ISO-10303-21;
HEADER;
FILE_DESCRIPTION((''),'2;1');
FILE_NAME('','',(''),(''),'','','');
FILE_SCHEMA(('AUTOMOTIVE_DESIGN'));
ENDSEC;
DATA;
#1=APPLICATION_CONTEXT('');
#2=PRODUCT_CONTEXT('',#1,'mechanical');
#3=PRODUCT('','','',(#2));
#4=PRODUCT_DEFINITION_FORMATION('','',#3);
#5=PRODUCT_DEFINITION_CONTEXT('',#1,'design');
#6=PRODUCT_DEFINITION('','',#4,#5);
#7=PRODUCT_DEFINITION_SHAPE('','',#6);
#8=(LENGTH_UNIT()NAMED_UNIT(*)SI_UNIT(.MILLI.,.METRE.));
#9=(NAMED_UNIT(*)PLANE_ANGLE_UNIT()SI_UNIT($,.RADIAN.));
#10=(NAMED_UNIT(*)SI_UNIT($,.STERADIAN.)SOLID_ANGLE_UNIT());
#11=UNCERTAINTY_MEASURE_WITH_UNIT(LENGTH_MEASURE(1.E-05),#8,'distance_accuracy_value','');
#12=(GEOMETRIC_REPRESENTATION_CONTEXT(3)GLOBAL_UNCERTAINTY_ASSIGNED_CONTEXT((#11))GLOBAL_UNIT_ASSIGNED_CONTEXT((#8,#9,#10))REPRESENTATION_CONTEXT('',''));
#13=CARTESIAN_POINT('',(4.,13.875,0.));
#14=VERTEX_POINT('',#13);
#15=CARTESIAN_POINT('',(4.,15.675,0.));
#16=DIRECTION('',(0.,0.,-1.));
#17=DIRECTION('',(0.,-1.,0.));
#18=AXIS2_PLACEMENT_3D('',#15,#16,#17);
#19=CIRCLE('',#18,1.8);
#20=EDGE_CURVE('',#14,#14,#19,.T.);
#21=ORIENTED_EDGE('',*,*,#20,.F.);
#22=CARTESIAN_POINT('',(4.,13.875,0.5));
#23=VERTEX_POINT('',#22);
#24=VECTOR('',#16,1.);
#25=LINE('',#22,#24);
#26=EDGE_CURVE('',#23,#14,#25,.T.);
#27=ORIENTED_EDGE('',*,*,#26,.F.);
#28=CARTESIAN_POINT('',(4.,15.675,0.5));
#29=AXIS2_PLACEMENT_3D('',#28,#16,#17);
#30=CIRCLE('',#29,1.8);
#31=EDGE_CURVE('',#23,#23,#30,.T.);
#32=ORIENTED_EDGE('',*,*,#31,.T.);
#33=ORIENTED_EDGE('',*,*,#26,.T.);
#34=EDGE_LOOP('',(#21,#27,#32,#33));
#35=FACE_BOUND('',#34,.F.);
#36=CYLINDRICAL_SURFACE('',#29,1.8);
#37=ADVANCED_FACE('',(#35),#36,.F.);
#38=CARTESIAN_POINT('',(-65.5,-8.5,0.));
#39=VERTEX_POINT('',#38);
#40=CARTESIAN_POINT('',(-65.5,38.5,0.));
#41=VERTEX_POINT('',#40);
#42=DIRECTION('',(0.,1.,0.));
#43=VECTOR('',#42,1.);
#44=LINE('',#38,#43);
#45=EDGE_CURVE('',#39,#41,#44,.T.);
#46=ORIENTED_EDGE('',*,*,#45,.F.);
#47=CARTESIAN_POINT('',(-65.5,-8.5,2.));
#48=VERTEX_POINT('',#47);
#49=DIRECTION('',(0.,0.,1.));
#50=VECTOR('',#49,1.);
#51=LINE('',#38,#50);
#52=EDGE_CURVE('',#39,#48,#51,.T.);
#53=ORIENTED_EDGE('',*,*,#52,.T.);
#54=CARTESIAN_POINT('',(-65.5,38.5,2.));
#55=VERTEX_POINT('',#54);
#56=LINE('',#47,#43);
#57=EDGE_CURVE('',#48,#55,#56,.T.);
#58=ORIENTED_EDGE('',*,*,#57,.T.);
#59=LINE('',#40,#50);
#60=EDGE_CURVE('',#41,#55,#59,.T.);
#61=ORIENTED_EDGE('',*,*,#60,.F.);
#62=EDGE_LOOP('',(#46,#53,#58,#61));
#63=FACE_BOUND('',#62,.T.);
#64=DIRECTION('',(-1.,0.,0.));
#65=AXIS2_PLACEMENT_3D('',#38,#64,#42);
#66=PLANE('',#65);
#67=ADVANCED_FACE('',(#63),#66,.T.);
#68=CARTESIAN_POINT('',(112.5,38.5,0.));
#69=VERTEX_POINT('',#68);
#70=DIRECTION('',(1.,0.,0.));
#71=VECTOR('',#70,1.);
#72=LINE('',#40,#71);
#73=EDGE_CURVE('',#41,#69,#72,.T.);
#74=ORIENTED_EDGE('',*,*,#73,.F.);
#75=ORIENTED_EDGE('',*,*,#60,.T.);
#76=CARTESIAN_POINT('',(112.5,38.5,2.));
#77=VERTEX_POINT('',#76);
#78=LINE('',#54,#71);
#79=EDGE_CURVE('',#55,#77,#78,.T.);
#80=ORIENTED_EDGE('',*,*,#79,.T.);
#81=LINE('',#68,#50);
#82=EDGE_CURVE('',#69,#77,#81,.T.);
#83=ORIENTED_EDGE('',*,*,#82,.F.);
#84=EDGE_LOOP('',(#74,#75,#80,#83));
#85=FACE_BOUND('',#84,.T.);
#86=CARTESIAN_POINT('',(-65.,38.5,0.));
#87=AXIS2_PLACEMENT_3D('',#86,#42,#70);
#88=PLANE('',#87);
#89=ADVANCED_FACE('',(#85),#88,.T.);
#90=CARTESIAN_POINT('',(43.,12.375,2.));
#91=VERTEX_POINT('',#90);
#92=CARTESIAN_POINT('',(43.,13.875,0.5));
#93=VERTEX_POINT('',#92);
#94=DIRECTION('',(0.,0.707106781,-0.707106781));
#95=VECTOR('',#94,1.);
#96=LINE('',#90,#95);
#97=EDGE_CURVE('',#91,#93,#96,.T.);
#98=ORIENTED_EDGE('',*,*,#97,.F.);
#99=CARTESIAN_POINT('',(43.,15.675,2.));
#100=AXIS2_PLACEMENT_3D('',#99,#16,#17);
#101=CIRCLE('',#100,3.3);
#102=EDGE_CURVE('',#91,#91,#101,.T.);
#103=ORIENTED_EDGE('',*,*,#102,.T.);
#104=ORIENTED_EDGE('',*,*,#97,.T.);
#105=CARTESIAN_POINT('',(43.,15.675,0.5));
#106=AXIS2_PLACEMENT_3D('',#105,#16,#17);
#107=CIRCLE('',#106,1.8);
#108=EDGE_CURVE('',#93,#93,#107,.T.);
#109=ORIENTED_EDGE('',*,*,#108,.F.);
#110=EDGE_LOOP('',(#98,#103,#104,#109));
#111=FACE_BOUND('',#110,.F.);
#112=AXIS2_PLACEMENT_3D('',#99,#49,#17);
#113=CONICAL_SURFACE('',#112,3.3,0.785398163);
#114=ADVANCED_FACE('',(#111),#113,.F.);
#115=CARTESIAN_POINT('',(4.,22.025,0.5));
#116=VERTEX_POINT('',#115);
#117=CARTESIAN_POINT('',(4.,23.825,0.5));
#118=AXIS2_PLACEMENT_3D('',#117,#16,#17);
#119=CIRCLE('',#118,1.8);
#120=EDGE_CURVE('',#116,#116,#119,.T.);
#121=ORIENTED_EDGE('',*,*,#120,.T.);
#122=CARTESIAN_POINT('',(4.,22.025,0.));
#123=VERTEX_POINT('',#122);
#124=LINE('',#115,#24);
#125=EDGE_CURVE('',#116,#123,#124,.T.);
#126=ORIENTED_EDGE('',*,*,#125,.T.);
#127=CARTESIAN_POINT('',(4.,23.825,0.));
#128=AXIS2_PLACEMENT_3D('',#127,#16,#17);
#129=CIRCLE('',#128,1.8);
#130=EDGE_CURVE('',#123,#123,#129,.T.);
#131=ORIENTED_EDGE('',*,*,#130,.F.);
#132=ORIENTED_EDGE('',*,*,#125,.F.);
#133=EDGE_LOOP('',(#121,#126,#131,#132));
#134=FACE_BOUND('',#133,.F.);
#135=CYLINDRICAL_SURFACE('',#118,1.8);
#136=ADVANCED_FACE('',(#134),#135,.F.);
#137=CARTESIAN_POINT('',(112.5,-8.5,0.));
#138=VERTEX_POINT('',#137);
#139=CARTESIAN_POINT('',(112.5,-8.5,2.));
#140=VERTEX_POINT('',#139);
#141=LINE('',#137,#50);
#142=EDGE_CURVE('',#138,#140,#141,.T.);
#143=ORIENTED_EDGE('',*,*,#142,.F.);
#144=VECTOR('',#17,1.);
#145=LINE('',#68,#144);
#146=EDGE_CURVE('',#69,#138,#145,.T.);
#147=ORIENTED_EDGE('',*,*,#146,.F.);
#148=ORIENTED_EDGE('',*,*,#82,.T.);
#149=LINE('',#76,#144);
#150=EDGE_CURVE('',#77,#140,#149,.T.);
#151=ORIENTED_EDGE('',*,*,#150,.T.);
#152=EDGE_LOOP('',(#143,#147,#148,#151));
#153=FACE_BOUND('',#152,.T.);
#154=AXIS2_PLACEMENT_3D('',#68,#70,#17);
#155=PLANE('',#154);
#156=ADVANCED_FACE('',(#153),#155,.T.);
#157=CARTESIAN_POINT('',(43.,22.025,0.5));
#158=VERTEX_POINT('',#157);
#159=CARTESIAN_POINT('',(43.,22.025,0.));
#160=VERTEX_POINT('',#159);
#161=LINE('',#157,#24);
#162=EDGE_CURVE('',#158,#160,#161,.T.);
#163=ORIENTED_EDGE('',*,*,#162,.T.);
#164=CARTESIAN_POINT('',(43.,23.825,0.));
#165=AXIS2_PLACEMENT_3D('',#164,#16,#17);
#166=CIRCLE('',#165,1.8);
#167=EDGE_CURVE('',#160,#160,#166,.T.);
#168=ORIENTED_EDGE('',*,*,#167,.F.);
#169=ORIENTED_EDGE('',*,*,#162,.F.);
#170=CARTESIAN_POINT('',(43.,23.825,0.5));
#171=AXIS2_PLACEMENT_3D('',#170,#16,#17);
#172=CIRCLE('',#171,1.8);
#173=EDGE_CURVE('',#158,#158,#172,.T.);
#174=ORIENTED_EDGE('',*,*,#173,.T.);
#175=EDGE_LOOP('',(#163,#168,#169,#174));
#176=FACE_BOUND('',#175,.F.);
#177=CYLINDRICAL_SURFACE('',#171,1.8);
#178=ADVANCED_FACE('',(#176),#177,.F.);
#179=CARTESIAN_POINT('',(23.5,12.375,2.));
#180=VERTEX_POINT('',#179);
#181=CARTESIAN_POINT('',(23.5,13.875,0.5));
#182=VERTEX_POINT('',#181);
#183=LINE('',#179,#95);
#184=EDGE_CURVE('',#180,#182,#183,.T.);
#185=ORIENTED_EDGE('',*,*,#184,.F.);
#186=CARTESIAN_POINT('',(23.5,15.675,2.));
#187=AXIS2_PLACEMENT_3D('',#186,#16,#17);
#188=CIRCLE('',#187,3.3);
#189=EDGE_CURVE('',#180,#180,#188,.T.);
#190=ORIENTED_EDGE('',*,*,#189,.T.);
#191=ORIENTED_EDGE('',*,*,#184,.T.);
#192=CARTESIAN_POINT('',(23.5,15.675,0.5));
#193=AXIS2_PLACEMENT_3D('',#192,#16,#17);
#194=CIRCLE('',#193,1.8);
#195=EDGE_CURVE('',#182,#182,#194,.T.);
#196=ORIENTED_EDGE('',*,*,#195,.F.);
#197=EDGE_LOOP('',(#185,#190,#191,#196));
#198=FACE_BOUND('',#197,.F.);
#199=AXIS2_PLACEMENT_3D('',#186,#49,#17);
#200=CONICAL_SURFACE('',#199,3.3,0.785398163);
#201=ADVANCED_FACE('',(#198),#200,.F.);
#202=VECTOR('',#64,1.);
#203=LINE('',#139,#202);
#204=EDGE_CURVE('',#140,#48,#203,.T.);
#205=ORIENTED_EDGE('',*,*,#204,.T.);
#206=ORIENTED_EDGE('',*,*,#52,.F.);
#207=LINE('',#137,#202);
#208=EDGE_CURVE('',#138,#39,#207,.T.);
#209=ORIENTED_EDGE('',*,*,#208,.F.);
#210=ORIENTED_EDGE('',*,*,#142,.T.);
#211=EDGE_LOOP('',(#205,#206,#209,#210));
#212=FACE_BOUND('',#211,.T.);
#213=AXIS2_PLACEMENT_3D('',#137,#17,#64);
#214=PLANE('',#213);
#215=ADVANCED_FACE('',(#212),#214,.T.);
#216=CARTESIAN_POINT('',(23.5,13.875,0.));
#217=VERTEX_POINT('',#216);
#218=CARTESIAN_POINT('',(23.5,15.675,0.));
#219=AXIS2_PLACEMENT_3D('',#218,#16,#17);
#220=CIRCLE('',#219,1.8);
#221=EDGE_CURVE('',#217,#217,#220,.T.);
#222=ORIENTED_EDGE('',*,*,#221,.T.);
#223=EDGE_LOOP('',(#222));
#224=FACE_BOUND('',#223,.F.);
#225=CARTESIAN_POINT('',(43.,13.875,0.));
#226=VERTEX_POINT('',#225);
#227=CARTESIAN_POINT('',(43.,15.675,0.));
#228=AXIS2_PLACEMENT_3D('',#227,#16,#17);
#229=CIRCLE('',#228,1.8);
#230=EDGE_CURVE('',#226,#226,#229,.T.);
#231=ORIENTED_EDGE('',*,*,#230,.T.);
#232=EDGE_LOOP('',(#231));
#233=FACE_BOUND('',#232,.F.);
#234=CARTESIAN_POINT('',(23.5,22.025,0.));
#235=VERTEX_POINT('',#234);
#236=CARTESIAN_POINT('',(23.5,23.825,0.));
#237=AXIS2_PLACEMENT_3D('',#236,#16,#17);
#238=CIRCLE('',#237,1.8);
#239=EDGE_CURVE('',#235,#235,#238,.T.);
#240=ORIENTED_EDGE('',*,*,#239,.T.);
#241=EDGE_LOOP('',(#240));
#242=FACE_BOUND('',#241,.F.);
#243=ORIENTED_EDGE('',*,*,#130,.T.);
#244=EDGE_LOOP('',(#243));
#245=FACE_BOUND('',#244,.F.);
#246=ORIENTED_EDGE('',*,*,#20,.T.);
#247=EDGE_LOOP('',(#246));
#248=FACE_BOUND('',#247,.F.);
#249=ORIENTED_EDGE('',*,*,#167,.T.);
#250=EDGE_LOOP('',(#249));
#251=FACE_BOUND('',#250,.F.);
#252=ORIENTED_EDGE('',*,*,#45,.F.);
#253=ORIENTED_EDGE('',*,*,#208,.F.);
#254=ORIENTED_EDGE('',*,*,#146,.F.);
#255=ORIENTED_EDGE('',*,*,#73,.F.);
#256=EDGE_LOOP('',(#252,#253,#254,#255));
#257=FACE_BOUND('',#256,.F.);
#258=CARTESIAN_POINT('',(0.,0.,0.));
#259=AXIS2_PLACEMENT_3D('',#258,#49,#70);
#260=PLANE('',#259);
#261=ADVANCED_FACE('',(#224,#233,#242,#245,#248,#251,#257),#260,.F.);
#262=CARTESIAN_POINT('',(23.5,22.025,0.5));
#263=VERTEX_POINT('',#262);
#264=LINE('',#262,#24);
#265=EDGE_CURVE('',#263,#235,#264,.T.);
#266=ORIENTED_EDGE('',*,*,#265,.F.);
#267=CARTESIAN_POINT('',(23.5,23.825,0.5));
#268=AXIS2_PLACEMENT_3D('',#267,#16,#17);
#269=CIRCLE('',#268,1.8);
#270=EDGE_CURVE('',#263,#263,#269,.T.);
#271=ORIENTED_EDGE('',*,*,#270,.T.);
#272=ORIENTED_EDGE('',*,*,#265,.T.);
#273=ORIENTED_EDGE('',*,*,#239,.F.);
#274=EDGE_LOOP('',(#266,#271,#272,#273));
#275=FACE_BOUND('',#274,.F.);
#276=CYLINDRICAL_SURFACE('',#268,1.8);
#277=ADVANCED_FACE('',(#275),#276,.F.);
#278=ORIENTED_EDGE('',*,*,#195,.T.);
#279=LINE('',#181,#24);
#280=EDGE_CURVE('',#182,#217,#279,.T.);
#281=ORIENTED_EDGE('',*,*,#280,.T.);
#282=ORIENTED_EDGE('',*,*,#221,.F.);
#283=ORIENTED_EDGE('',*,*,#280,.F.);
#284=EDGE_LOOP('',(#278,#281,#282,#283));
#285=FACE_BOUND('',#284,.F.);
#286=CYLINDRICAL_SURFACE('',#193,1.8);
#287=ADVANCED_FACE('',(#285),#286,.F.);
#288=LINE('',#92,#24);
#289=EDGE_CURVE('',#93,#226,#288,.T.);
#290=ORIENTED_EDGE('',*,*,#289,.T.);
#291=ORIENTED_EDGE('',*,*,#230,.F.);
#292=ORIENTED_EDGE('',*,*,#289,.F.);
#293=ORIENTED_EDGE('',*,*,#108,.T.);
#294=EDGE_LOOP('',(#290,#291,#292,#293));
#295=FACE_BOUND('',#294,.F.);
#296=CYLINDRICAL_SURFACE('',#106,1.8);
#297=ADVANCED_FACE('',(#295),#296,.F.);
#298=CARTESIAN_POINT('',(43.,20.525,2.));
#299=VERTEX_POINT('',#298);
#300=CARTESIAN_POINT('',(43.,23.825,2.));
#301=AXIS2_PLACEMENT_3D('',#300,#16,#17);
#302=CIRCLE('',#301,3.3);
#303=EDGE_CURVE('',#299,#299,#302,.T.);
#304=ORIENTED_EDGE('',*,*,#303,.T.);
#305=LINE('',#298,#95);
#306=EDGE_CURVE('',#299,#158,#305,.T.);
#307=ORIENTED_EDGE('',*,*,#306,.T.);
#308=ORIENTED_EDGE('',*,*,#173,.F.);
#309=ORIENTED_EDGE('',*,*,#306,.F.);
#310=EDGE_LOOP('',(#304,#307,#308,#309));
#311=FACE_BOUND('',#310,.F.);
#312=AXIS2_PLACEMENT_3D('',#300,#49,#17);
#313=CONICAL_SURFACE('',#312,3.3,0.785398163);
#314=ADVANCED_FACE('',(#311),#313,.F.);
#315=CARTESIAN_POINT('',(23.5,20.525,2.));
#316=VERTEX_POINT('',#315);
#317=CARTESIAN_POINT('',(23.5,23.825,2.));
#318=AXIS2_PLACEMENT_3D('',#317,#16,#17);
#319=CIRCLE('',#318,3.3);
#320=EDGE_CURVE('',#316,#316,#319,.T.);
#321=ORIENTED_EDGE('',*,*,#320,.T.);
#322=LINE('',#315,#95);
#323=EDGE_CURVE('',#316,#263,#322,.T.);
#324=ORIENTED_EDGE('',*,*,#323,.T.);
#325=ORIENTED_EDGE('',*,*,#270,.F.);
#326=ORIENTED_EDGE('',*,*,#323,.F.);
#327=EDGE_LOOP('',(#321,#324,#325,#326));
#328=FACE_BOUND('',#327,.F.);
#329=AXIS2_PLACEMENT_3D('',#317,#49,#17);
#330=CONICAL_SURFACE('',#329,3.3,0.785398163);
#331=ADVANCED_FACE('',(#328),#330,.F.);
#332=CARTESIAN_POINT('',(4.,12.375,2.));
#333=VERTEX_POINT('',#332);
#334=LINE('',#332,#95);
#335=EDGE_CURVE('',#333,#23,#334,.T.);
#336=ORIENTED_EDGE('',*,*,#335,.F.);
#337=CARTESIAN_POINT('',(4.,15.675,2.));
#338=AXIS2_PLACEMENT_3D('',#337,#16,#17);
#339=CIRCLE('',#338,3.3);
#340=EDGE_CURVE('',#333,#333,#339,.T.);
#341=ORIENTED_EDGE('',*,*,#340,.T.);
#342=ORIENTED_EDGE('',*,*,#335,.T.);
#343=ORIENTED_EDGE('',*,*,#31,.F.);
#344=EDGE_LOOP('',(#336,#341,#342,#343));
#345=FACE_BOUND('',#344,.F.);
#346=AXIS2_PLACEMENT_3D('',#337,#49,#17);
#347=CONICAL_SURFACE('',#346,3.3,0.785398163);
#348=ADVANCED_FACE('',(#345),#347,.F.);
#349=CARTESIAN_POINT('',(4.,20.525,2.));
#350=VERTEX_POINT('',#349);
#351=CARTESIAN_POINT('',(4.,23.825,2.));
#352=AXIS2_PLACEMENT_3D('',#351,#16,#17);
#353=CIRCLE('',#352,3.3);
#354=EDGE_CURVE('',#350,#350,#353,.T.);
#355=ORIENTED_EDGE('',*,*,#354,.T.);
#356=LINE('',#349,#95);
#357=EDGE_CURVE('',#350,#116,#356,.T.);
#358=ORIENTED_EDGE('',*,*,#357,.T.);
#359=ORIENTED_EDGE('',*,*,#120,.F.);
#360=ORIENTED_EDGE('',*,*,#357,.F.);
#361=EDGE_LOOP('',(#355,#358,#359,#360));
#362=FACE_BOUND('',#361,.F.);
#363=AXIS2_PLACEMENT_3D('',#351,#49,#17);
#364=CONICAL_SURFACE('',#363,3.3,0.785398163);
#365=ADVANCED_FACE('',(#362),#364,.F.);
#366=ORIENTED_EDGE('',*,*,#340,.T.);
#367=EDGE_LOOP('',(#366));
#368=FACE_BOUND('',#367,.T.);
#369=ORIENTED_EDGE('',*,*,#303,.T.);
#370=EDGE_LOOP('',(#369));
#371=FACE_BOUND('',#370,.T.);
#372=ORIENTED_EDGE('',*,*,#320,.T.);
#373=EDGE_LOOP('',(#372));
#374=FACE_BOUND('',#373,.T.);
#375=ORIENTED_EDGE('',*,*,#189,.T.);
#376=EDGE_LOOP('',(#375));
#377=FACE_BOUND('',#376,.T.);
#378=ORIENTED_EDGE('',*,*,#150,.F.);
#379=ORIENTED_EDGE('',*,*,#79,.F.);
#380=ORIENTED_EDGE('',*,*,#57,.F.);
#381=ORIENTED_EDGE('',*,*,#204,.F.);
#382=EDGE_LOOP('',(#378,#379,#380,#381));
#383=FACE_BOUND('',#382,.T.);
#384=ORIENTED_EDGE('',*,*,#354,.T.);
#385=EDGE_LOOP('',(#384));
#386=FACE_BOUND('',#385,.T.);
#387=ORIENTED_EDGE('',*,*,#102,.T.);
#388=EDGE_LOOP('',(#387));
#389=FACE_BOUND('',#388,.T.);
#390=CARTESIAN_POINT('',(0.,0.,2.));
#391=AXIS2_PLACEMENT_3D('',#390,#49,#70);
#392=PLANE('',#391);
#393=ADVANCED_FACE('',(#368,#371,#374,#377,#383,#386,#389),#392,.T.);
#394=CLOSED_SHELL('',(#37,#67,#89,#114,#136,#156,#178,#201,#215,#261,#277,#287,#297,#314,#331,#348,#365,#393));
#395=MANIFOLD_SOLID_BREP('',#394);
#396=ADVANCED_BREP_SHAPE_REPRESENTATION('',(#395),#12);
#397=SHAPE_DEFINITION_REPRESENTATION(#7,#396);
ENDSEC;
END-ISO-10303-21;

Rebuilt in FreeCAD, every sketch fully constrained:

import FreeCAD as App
import Part
import Sketcher

V = App.Vector
Q = App.Units.Quantity


def add_polygon(sketch, points):
    """Adds a closed chain of lines whose ends are joined by coincident constraints."""
    first, n = sketch.GeometryCount, len(points)
    for a, b in zip(points, points[1:] + points[:1]):
        sketch.addGeometry(Part.LineSegment(App.Vector(*a, 0), App.Vector(*b, 0)), False)
    for i in range(n):
        sketch.addConstraint(Sketcher.Constraint("Coincident", first + i, 2, first + (i + 1) % n, 1))

doc = App.newDocument("Part")
body = doc.addObject("PartDesign::Body", "Body")

# Sketch on XY plane
sketch1 = body.newObject("Sketcher::SketchObject", "Sketch")
sketch1.AttachmentSupport = (doc.getObject("XY_Plane"), [""])
sketch1.MapMode = "FlatFace"
add_polygon(sketch1, [(112.5, 38.5), (-65.5, 38.5), (-65.5, -8.5), (112.5, -8.5)])  # lines 0-3
sketch1.addConstraint([
    Sketcher.Constraint("Horizontal", 0),
    Sketcher.Constraint("Vertical", 1),
    Sketcher.Constraint("Horizontal", 2),
    Sketcher.Constraint("Vertical", 3),
    Sketcher.Constraint("DistanceX", 0, 2, 0, 1, Q("178 mm")),
    Sketcher.Constraint("DistanceY", 1, 2, 1, 1, Q("47 mm")),
    Sketcher.Constraint("DistanceX", 0, 2, -1, 1, Q("65.5 mm")),
    Sketcher.Constraint("DistanceY", -1, 1, 0, 2, Q("38.5 mm")),
])
pad1 = body.newObject("PartDesign::Pad", "Pad")
pad1.Profile = sketch1
pad1.Length = 2

# Sketch on XY plane
sketch2 = body.newObject("Sketcher::SketchObject", "Sketch001")
sketch2.AttachmentSupport = (doc.getObject("XY_Plane"), [""])
sketch2.MapMode = "FlatFace"
sketch2.AttachmentOffset = App.Placement(V(0, 0, 2), App.Rotation())
sketch2.addGeometry([
    Part.Circle(V(4, 23.825, 0), V(0, 0, 1), 1.8),  # 0
    Part.Circle(V(4, 15.675, 0), V(0, 0, 1), 1.8),  # 1
    Part.Circle(V(23.5, 15.675, 0), V(0, 0, 1), 1.8),  # 2
    Part.Circle(V(23.5, 23.825, 0), V(0, 0, 1), 1.8),  # 3
    Part.Circle(V(43, 23.825, 0), V(0, 0, 1), 1.8),  # 4
    Part.Circle(V(43, 15.675, 0), V(0, 0, 1), 1.8),  # 5
], False)
sketch2.addConstraint([
    Sketcher.Constraint("Equal", 0, 1),
    Sketcher.Constraint("Equal", 1, 2),
    Sketcher.Constraint("Equal", 2, 3),
    Sketcher.Constraint("Equal", 3, 4),
    Sketcher.Constraint("Equal", 4, 5),
    Sketcher.Constraint("Horizontal", 1, 3, 2, 3),
    Sketcher.Constraint("Horizontal", 0, 3, 3, 3),
    Sketcher.Constraint("Horizontal", 3, 3, 4, 3),
    Sketcher.Constraint("Horizontal", 2, 3, 5, 3),
    Sketcher.Constraint("Vertical", 0, 3, 1, 3),
    Sketcher.Constraint("Vertical", 2, 3, 3, 3),
    Sketcher.Constraint("Vertical", 4, 3, 5, 3),
    Sketcher.Constraint("Diameter", 0, Q("3.6 mm")),
    Sketcher.Constraint("DistanceX", -1, 1, 0, 3, Q("4 mm")),
    Sketcher.Constraint("DistanceX", -1, 1, 4, 3, Q("43 mm")),
    Sketcher.Constraint("DistanceX", -1, 1, 2, 3, Q("23.5 mm")),
    Sketcher.Constraint("DistanceY", 1, 3, 0, 3, Q("8.15 mm")),
    Sketcher.Constraint("DistanceY", -1, 1, 0, 3, Q("23.825 mm")),
])
doc.recompute()
hole = body.newObject("PartDesign::Hole", "Hole")
hole.Profile = sketch2
hole.ThreadType = "None"
hole.Diameter = 3.6
hole.DepthType = "ThroughAll"
hole.HoleCutType = "Countersink"
hole.HoleCutDiameter = 6.6
hole.HoleCutCountersinkAngle = 90

doc.recompute()
